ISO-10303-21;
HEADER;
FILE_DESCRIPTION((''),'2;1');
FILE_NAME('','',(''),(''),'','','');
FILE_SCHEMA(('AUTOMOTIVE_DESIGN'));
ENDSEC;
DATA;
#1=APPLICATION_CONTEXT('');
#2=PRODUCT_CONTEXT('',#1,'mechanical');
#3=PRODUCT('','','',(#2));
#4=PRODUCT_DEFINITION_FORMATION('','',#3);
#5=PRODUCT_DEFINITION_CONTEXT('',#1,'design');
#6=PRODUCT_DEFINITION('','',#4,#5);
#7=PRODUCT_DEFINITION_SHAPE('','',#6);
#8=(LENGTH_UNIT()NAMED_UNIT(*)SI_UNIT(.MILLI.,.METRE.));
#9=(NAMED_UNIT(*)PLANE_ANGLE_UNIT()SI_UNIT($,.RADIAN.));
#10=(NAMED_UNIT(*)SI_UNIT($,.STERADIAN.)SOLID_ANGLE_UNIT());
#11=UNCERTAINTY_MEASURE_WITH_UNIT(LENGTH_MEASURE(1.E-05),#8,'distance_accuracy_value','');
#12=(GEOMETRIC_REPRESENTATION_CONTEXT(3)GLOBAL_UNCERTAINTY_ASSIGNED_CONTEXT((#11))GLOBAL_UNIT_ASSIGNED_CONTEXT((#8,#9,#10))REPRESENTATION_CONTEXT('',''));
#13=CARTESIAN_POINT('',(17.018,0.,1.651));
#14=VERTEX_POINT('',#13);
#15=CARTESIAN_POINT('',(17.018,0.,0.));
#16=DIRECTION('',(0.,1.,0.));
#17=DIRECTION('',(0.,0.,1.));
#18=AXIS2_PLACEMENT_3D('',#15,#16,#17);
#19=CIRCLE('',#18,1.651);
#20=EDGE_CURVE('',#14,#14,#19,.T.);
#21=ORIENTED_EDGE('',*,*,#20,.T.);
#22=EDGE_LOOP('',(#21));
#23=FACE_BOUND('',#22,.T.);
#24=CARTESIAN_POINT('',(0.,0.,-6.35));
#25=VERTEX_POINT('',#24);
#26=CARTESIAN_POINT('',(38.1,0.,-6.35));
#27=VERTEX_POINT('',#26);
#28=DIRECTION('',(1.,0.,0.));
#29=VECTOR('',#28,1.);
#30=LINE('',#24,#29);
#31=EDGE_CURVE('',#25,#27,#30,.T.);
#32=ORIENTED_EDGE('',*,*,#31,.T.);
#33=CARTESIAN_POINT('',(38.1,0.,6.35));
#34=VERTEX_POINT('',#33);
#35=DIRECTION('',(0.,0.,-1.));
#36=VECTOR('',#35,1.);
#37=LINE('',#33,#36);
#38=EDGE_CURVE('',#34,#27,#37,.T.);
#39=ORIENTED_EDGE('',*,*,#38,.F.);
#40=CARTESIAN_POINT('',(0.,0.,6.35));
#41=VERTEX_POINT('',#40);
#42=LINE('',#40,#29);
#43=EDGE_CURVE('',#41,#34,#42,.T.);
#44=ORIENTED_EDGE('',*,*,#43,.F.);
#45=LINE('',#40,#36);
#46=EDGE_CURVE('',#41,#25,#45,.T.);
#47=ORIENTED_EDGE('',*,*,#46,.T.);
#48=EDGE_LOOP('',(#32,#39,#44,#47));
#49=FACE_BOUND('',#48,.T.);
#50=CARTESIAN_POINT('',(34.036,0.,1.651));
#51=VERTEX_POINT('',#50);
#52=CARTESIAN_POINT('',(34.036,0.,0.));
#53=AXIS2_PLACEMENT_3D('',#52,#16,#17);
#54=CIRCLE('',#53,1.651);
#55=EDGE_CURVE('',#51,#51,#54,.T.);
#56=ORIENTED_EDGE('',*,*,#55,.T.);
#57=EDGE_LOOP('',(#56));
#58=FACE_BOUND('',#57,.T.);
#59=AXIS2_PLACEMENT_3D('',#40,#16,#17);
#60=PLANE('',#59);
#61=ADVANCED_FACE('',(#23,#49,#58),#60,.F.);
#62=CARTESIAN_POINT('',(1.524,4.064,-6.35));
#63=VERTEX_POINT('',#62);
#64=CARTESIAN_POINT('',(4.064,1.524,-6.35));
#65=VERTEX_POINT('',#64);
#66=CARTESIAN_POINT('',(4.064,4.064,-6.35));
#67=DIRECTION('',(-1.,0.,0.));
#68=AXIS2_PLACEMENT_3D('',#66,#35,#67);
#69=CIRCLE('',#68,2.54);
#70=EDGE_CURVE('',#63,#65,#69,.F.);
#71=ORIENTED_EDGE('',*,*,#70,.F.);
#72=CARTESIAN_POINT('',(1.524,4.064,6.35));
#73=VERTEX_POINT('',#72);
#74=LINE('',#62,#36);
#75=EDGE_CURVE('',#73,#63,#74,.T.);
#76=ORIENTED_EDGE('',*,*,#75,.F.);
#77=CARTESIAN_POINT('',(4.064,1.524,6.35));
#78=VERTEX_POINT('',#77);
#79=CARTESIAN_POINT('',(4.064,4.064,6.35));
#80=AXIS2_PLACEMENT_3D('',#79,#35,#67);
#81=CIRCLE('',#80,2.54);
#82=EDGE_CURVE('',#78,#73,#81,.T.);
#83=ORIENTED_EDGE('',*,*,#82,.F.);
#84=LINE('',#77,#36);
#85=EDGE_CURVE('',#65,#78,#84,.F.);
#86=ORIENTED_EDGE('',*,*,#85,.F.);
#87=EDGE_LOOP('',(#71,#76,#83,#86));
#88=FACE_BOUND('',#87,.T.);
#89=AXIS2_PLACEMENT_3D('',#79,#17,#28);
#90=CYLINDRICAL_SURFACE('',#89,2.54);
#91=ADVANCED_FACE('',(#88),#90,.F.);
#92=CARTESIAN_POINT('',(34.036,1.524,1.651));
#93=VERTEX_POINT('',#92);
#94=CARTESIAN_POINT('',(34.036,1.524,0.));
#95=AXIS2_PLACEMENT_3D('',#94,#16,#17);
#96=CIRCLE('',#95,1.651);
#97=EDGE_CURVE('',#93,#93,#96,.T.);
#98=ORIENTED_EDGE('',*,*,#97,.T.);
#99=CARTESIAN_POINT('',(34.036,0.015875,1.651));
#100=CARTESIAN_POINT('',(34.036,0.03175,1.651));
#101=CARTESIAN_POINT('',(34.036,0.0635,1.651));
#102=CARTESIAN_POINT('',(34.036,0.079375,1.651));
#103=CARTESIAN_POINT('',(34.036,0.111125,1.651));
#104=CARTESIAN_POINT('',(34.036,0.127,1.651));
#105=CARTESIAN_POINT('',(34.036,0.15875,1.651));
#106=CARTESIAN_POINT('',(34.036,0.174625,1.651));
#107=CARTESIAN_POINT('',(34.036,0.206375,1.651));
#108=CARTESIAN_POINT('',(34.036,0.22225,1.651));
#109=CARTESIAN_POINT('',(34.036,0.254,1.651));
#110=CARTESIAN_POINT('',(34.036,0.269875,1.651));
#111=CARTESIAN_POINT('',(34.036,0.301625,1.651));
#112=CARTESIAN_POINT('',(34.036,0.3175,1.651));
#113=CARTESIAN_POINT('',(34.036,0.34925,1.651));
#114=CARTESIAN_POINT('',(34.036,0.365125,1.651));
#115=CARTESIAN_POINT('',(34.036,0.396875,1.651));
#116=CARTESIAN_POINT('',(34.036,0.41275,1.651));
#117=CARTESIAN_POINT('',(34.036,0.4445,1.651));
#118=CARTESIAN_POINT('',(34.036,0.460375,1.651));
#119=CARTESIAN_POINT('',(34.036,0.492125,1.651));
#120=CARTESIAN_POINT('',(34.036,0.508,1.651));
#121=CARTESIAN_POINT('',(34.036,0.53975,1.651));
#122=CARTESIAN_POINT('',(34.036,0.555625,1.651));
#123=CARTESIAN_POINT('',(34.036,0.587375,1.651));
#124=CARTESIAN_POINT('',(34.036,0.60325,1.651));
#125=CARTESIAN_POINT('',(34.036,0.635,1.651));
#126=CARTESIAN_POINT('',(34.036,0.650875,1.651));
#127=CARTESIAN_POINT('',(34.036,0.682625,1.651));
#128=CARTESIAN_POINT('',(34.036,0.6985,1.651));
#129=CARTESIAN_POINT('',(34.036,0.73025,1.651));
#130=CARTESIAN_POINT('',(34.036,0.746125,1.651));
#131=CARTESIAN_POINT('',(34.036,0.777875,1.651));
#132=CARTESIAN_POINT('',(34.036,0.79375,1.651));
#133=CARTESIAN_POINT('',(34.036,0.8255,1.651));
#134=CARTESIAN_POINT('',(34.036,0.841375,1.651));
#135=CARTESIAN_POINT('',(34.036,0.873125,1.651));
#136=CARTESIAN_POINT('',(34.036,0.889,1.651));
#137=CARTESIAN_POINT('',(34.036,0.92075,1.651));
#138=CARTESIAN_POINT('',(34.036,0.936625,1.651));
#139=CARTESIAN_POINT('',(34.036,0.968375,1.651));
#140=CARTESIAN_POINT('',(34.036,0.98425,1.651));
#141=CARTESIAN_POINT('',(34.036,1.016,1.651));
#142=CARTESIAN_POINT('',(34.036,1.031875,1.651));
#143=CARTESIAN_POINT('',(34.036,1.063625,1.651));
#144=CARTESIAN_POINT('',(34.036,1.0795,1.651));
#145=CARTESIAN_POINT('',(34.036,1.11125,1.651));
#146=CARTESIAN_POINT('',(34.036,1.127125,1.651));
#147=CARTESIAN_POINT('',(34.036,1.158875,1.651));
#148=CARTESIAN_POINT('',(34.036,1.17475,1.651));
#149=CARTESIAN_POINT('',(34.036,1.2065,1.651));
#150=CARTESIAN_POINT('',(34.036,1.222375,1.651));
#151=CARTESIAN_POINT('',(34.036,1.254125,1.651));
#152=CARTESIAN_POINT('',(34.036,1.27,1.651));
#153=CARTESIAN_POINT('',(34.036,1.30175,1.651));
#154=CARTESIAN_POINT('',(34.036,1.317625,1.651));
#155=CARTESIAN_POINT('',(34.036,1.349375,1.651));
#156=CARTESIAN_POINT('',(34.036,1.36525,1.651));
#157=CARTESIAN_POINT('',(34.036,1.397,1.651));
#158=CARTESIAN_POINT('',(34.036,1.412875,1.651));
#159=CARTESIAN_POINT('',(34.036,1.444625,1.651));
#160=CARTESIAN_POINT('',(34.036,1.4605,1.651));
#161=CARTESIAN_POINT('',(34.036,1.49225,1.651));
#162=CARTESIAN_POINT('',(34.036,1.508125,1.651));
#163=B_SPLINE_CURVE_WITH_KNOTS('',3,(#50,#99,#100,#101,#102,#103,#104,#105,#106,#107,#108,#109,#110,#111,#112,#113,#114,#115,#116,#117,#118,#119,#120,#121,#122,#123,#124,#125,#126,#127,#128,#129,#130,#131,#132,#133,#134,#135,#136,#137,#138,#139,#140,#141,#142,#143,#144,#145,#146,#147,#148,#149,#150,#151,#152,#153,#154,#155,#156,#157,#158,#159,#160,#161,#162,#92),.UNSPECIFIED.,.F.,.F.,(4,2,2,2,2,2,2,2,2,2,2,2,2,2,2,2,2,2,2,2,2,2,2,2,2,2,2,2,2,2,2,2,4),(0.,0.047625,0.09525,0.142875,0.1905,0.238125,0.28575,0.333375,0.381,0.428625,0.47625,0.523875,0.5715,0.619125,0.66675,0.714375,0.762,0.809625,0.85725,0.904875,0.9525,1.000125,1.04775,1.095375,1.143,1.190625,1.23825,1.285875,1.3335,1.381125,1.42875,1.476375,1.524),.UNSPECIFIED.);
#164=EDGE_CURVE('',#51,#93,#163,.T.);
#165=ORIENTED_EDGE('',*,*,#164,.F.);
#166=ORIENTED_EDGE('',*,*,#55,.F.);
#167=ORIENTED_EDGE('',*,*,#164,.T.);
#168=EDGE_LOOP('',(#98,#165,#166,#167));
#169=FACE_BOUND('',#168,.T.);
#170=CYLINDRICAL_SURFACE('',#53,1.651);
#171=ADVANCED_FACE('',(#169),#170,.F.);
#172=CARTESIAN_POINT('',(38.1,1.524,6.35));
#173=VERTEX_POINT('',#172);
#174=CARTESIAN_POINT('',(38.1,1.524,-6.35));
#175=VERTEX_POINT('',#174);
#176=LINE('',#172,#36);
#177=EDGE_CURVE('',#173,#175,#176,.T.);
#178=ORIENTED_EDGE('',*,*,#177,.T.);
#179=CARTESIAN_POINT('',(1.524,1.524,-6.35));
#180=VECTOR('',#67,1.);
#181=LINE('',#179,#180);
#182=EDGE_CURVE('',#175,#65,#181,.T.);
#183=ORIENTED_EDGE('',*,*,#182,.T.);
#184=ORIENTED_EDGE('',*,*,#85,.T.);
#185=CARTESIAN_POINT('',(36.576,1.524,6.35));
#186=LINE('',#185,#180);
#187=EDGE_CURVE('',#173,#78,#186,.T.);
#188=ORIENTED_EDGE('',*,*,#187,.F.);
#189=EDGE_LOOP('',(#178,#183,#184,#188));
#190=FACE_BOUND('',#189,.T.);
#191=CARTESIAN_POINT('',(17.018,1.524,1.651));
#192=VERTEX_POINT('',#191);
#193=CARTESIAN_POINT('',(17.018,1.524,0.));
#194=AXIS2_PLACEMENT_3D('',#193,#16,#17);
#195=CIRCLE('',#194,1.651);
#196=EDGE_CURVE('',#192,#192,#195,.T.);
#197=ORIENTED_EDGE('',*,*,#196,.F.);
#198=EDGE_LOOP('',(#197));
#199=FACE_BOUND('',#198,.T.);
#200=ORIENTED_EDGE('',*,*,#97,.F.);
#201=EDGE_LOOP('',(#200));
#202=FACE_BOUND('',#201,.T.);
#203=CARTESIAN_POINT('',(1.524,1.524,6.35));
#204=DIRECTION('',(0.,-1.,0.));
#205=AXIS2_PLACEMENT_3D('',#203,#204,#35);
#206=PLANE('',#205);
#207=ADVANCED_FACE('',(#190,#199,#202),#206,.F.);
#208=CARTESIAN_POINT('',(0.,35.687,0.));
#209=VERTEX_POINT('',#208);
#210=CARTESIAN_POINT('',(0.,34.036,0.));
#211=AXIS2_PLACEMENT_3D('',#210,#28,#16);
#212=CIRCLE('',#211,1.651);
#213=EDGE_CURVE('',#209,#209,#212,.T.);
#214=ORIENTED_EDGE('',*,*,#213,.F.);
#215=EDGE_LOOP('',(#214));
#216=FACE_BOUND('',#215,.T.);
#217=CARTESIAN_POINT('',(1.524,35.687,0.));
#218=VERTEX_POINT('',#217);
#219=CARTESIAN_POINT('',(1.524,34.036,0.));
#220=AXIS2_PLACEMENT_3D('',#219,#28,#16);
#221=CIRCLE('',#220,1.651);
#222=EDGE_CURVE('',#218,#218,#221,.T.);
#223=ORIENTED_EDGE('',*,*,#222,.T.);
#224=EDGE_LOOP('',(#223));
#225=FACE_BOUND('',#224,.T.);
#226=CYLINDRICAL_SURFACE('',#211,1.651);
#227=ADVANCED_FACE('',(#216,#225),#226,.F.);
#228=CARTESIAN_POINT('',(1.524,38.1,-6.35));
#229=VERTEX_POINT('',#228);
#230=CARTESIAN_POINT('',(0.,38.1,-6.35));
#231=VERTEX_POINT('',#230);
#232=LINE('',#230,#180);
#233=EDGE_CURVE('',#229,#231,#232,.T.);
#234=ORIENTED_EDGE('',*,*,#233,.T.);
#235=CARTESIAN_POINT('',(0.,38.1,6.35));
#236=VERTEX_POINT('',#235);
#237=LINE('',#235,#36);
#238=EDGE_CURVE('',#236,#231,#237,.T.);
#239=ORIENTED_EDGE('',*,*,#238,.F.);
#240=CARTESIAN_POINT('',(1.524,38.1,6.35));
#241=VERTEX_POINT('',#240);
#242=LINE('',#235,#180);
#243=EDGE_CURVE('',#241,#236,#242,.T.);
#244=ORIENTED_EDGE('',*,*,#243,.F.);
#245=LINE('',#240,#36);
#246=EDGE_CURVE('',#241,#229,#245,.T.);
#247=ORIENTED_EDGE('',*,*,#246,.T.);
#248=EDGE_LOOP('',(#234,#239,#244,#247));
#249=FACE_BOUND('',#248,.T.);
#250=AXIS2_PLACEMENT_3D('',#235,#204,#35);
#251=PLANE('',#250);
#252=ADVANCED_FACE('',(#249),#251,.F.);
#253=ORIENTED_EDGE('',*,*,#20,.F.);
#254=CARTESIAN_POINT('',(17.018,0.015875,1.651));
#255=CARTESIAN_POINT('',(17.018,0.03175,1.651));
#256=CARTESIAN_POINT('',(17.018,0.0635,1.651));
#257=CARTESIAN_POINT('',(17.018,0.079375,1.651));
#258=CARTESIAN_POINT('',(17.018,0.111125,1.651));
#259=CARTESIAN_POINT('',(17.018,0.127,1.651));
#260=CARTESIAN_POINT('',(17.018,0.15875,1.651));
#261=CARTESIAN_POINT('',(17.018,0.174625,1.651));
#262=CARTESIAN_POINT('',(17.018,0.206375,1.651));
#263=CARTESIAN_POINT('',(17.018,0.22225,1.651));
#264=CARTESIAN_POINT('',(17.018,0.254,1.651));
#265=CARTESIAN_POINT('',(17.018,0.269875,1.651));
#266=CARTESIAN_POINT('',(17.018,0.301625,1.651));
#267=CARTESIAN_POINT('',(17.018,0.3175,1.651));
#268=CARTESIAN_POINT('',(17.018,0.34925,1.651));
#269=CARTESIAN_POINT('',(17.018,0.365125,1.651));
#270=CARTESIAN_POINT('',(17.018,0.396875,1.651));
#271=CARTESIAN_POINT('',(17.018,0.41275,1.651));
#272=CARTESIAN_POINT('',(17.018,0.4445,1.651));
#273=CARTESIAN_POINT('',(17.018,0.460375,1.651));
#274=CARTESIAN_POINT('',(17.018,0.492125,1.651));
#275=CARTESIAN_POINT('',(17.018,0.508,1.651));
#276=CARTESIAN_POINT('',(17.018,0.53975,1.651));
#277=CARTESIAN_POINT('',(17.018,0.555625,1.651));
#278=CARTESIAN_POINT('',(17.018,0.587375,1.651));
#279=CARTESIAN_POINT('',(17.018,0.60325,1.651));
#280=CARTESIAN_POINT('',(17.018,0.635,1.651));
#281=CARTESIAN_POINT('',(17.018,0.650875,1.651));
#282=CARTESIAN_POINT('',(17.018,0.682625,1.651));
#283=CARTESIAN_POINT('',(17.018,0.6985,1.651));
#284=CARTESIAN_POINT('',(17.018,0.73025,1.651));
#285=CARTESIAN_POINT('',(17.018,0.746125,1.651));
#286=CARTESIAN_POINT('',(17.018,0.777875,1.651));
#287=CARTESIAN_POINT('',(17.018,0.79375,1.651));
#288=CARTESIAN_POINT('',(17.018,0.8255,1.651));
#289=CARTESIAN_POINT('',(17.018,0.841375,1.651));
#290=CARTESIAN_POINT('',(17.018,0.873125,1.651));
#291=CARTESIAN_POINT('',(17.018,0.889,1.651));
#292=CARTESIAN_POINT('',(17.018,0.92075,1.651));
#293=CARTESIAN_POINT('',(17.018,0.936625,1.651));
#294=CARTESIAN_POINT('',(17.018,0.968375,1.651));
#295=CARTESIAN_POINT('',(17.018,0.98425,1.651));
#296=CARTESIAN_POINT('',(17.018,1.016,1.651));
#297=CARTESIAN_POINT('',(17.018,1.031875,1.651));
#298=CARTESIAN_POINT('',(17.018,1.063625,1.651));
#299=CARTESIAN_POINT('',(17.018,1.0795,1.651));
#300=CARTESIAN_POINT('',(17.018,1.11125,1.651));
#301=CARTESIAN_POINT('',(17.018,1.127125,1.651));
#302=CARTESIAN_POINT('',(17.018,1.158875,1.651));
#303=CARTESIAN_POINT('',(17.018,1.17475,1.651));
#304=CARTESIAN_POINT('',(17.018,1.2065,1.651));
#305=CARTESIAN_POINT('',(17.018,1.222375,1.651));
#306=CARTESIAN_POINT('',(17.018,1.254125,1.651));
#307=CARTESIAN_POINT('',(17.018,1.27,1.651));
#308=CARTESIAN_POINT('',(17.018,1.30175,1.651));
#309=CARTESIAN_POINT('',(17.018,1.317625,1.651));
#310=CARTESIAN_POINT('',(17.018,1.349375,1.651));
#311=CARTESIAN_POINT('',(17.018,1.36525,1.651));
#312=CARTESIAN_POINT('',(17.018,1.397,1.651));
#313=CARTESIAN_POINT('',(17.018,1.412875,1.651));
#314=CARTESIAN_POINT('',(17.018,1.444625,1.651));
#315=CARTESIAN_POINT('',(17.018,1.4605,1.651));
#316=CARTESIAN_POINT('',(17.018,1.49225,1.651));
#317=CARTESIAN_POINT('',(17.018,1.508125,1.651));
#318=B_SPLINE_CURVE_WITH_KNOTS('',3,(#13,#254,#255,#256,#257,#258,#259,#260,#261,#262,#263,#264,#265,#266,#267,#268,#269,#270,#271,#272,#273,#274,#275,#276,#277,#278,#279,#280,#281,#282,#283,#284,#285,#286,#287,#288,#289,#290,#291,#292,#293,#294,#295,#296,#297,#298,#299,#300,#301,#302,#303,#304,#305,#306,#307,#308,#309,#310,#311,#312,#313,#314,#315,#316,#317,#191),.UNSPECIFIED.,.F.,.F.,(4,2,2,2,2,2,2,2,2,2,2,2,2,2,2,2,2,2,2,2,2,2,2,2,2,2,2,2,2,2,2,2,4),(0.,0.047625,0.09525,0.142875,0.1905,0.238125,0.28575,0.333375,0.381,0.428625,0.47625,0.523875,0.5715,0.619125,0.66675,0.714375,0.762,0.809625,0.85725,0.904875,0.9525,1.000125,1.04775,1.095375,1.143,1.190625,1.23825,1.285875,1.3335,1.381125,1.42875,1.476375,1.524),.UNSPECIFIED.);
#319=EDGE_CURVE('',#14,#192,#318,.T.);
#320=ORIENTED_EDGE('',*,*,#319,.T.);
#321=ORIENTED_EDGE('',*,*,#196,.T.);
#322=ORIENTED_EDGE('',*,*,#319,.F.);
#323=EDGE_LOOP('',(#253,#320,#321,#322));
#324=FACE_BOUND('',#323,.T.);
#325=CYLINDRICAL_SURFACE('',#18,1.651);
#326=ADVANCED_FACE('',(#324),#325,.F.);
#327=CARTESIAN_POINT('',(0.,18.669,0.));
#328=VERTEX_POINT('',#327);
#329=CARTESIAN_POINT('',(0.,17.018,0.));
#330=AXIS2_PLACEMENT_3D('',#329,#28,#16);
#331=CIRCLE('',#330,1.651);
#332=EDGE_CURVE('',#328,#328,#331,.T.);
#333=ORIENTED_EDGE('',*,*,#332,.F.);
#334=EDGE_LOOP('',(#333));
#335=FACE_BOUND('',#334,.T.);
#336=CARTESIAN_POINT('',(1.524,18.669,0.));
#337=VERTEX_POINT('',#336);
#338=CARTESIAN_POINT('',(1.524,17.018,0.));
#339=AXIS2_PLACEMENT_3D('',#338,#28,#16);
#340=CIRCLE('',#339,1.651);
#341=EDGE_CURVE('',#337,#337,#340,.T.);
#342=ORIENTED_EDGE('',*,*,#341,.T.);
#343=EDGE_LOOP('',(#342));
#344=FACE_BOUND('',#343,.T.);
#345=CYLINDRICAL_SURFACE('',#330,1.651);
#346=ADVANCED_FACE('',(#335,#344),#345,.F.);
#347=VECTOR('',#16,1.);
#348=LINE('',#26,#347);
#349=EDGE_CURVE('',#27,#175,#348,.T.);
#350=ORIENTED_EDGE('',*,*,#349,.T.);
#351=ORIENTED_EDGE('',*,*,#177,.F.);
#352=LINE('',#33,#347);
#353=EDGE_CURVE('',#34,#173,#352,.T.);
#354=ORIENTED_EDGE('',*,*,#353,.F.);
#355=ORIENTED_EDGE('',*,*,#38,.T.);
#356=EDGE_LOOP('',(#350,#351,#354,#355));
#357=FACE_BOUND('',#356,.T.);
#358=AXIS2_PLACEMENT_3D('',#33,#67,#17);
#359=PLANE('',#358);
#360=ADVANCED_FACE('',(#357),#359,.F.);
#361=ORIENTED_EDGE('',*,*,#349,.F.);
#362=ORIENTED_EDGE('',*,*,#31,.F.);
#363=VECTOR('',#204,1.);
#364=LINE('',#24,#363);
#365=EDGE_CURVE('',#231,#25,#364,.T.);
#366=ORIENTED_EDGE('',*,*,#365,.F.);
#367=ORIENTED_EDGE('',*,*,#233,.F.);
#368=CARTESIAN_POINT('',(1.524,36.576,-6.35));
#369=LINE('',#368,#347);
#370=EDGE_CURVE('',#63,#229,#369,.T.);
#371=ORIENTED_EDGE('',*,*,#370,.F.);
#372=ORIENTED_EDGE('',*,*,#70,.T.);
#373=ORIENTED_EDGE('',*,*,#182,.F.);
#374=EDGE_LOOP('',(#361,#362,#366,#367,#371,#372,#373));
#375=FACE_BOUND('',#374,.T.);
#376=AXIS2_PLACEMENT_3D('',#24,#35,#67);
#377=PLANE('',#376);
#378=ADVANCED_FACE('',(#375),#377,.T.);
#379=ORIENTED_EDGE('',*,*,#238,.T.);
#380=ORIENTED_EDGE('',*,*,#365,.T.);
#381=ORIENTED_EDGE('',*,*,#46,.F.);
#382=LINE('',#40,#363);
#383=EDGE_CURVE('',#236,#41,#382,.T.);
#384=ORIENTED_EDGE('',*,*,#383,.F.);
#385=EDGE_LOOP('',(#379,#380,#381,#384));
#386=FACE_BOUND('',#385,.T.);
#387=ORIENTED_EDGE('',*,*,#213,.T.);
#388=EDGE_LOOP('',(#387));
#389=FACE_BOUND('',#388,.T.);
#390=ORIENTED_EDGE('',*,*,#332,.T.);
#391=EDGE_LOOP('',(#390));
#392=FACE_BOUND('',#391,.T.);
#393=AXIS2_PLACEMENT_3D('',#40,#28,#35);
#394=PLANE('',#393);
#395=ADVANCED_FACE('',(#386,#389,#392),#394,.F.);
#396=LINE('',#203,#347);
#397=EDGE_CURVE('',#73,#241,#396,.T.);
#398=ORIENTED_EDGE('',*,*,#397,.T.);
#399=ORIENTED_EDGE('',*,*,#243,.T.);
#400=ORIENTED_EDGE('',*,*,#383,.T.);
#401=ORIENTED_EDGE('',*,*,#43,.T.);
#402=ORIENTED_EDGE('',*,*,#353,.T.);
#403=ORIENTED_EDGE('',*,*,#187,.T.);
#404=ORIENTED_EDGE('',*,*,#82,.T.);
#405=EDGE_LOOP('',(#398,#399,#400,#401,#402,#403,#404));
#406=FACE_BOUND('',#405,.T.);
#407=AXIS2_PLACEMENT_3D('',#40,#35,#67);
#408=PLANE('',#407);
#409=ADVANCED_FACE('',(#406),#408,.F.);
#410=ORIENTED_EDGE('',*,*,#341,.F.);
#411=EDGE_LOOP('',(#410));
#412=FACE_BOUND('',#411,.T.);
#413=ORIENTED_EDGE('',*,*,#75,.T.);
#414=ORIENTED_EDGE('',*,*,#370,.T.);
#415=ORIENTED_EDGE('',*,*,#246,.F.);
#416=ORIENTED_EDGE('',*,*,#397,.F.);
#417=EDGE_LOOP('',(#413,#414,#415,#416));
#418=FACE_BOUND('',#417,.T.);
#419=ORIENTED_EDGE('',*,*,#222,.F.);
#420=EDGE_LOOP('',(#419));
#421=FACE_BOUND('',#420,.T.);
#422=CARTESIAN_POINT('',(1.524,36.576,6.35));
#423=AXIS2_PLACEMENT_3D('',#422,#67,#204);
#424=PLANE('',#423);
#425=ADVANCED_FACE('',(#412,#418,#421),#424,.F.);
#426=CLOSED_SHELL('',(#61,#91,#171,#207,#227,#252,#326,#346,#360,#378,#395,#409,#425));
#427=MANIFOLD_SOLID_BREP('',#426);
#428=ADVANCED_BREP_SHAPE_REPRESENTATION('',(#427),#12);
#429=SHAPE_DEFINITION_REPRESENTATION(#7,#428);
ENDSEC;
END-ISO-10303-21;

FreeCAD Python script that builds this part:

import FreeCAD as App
import Part
import Sketcher
Q = App.Units.Quantity


def edges_at(feature, points):
    """Names of the edges that pass closest to the given points."""
    edges = feature.Shape.Edges
    near = lambda p: min(range(len(edges)), key=lambda i: edges[i].distToShape(Part.Vertex(*p))[0])
    return sorted({f"Edge{near(p) + 1}" for p in points})


def add_polygon(sketch, points):
    """Adds a closed chain of lines whose ends are joined by coincident constraints."""
    first, n = sketch.GeometryCount, len(points)
    for a, b in zip(points, points[1:] + points[:1]):
        sketch.addGeometry(Part.LineSegment(App.Vector(*a, 0), App.Vector(*b, 0)), False)
    for i in range(n):
        sketch.addConstraint(Sketcher.Constraint("Coincident", first + i, 2, first + (i + 1) % n, 1))

doc = App.newDocument("Part")
body = doc.addObject("PartDesign::Body", "Body")

sketch1 = doc.addObject("Sketcher::SketchObject", "Sketch")
body.addObject(sketch1)
sketch1.AttachmentSupport = (doc.XY_Plane, [""])
sketch1.MapMode = "FlatFace"
add_polygon(sketch1, [(0, 0), (38.1, 0), (38.1, 1.5), (1.5, 1.5), (1.5, 38.1), (0, 38.1)])
sketch1.addConstraint(Sketcher.Constraint("Horizontal", 0))
sketch1.addConstraint(Sketcher.Constraint("Vertical", 1))
sketch1.addConstraint(Sketcher.Constraint("Horizontal", 2))
sketch1.addConstraint(Sketcher.Constraint("Vertical", 3))
sketch1.addConstraint(Sketcher.Constraint("Horizontal", 4))
sketch1.addConstraint(Sketcher.Constraint("Vertical", 5))
sketch1.addConstraint(Sketcher.Constraint("Coincident", 5, 2, -1, 1))
sketch1.addConstraint(Sketcher.Constraint("Equal", 4, 1))
sketch1.addConstraint(Sketcher.Constraint("Equal", 2, 3))
sketch1.addConstraint(Sketcher.Constraint("DistanceX", 0, 1, 0, 2, Q("1.5 in")))
sketch1.addConstraint(Sketcher.Constraint("DistanceX", 2, 2, 2, 1, Q("1.44 in")))
pad1 = doc.addObject("PartDesign::Pad", "Pad")
body.addObject(pad1)
pad1.Profile = sketch1
pad1.Length = Q("0.5 in")
pad1.Midplane = True
doc.recompute()

fillet = doc.addObject("PartDesign::Fillet", "Fillet")
body.addObject(fillet)
fillet.Base = (pad1, edges_at(pad1, [(1.524, 1.524, 0)]))
fillet.Radius = Q("0.1 in")

sketch2 = doc.addObject("Sketcher::SketchObject", "Sketch001")
body.addObject(sketch2)
sketch2.AttachmentSupport = (doc.YZ_Plane, [""])
sketch2.MapMode = "FlatFace"
sketch2.AttachmentOffset = App.Placement(App.Vector(0, 0, 0.06 * 25.4), App.Rotation())
sketch2.addGeometry(Part.Circle(App.Vector(34, 0, 0), App.Vector(0, 0, 1), 1.7), False)
sketch2.addGeometry(Part.Circle(App.Vector(17, 0, 0), App.Vector(0, 0, 1), 1.7), False)
sketch2.addConstraint(Sketcher.Constraint("Equal", 0, 1))
sketch2.addConstraint(Sketcher.Constraint("PointOnObject", 0, 3, -1))
sketch2.addConstraint(Sketcher.Constraint("PointOnObject", 1, 3, -1))
sketch2.addConstraint(Sketcher.Constraint("Diameter", 0, Q("0.13 in")))
sketch2.addConstraint(Sketcher.Constraint("DistanceX", -1, 1, 0, 3, Q("1.34 in")))
sketch2.addConstraint(Sketcher.Constraint("DistanceX", -1, 1, 1, 3, Q("0.67 in")))
pocket1 = doc.addObject("PartDesign::Pocket", "Pocket")
body.addObject(pocket1)
pocket1.Profile = sketch2
pocket1.Type = "ThroughAll"

sketch3 = doc.addObject("Sketcher::SketchObject", "Sketch002")
body.addObject(sketch3)
sketch3.AttachmentSupport = (doc.XZ_Plane, [""])
sketch3.MapMode = "FlatFace"
sketch3.AttachmentOffset = App.Placement(App.Vector(0, 0, -0.06 * 25.4), App.Rotation())
sketch3.addGeometry(Part.Circle(App.Vector(17, 0, 0), App.Vector(0, 0, 1), 1.7), False)
sketch3.addGeometry(Part.Circle(App.Vector(34, 0, 0), App.Vector(0, 0, 1), 1.7), False)
sketch3.addConstraint(Sketcher.Constraint("Equal", 0, 1))
sketch3.addConstraint(Sketcher.Constraint("PointOnObject", 0, 3, -1))
sketch3.addConstraint(Sketcher.Constraint("PointOnObject", 1, 3, -1))
sketch3.addConstraint(Sketcher.Constraint("Diameter", 0, Q("0.13 in")))
sketch3.addConstraint(Sketcher.Constraint("DistanceX", -1, 1, 0, 3, Q("0.67 in")))
sketch3.addConstraint(Sketcher.Constraint("DistanceX", -1, 1, 1, 3, Q("1.34 in")))
pocket2 = doc.addObject("PartDesign::Pocket", "Pocket001")
body.addObject(pocket2)
pocket2.Profile = sketch3
pocket2.Type = "ThroughAll"
pocket2.Reversed = True

doc.recompute()
